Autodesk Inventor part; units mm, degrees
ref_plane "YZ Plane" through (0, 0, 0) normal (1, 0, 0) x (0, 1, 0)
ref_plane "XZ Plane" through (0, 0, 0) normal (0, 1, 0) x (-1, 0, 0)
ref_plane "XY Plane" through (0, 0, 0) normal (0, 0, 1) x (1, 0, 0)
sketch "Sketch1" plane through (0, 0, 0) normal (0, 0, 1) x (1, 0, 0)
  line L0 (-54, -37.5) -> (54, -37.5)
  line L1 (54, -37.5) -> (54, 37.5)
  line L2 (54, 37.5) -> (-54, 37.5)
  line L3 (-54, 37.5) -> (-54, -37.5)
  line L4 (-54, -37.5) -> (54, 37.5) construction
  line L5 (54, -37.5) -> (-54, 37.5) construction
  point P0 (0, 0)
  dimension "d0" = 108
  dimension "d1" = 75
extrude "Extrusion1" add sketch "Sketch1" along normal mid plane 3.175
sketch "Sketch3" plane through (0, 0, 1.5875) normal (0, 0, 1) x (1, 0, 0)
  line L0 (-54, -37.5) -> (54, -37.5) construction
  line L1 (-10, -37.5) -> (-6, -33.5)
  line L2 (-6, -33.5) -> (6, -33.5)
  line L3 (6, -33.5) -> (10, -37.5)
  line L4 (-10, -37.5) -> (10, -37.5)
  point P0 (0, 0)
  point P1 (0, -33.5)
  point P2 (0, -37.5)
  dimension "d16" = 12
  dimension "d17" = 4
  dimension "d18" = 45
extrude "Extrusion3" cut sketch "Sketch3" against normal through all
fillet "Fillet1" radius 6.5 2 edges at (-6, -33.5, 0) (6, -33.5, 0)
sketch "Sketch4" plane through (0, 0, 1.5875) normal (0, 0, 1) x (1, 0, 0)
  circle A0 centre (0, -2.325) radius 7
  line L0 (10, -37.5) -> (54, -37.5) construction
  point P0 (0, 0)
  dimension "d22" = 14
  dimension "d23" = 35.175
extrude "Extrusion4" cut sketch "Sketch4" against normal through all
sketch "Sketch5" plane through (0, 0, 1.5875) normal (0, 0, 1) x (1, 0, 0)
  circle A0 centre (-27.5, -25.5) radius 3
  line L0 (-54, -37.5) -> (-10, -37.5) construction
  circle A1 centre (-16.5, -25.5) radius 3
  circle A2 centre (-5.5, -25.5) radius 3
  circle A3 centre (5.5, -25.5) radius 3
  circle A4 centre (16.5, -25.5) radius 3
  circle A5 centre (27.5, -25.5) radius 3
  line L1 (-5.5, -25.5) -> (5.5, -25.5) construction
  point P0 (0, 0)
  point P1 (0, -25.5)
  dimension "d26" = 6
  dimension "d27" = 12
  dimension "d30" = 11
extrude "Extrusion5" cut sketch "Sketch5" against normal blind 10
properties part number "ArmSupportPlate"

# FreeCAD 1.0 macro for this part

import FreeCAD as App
import Part
import Sketcher


def edges_at(feature, points):
    """Names of the edges that pass closest to the given points."""
    edges = feature.Shape.Edges
    near = lambda p: min(range(len(edges)), key=lambda i: edges[i].distToShape(Part.Vertex(*p))[0])
    return sorted({f"Edge{near(p) + 1}" for p in points})


def add_polygon(sketch, points):
    """Adds a closed chain of lines whose ends are joined by coincident constraints."""
    first, n = sketch.GeometryCount, len(points)
    for a, b in zip(points, points[1:] + points[:1]):
        sketch.addGeometry(Part.LineSegment(App.Vector(*a, 0), App.Vector(*b, 0)), False)
    for i in range(n):
        sketch.addConstraint(Sketcher.Constraint("Coincident", first + i, 2, first + (i + 1) % n, 1))

doc = App.newDocument("Part")
body = doc.addObject("PartDesign::Body", "Body")

# Sketch on XY plane
sketch1 = body.newObject("Sketcher::SketchObject", "Sketch")
sketch1.AttachmentSupport = (doc.getObject("XY_Plane"), [""])
sketch1.MapMode = "FlatFace"
add_polygon(sketch1, [(-54, 37.5), (-54, -37.5), (54, -37.5), (54, 37.5)])  # lines 0-3
sketch1.addConstraint([
    Sketcher.Constraint("Vertical", 0),
    Sketcher.Constraint("Horizontal", 1),
    Sketcher.Constraint("Vertical", 2),
    Sketcher.Constraint("Horizontal", 3),
    Sketcher.Constraint("Symmetric", 0, 2, 2, 2, -1, 1),
    Sketcher.Constraint("DistanceX", 1, 1, 1, 2, 108.0),
    Sketcher.Constraint("DistanceY", 0, 2, 0, 1, 75.0),
])
pad1 = body.newObject("PartDesign::Pad", "Pad")
pad1.Profile = sketch1
pad1.Length = 3.175
pad1.Midplane = True

# Sketch on XY plane
sketch2 = body.newObject("Sketcher::SketchObject", "Sketch001")
sketch2.AttachmentSupport = (doc.getObject("XY_Plane"), [""])
sketch2.MapMode = "FlatFace"
sketch2.AttachmentOffset = App.Placement(App.Vector(0, 0, 1.5875), App.Rotation())
add_polygon(sketch2, [(-6, -33.5), (-10, -37.5), (10, -37.5), (6, -33.5)])  # lines 0-3
sketch2.addConstraint([
    Sketcher.Constraint("Horizontal", 1),
    Sketcher.Constraint("Horizontal", 3),
    Sketcher.Constraint("Perpendicular", 0, 2),
    Sketcher.Constraint("Equal", 0, 2),
    Sketcher.Constraint("DistanceX", 3, 2, 3, 1, 12.0),
    Sketcher.Constraint("DistanceX", 2, 2, 1, 2, 4.0),
    Sketcher.Constraint("DistanceX", 0, 2, -1, 1, 10.0),
    Sketcher.Constraint("DistanceY", 0, 2, -1, 1, 37.5),
])
pocket1 = body.newObject("PartDesign::Pocket", "Pocket")
pocket1.Profile = sketch2
pocket1.Type = "ThroughAll"
doc.recompute()

fillet = body.newObject("PartDesign::Fillet", "Fillet")
fillet.Base = (pocket1, edges_at(pocket1, [(-6, -33.5, 0), (6, -33.5, 0)]))
fillet.Radius = 6.5

# Sketch on XY plane
sketch3 = body.newObject("Sketcher::SketchObject", "Sketch002")
sketch3.AttachmentSupport = (doc.getObject("XY_Plane"), [""])
sketch3.MapMode = "FlatFace"
sketch3.AttachmentOffset = App.Placement(App.Vector(0, 0, 1.5875), App.Rotation())
sketch3.addGeometry(Part.Circle(App.Vector(0, -2.325, 0), App.Vector(0, 0, 1), 7), False)
sketch3.addConstraint([
    Sketcher.Constraint("PointOnObject", 0, 3, -2),
    Sketcher.Constraint("Diameter", 0, 14.0),
    Sketcher.Constraint("DistanceY", 0, 3, -1, 1, 2.325),
])
pocket2 = body.newObject("PartDesign::Pocket", "Pocket001")
pocket2.Profile = sketch3
pocket2.Type = "ThroughAll"

# Sketch on XY plane
sketch4 = body.newObject("Sketcher::SketchObject", "Sketch003")
sketch4.AttachmentSupport = (doc.getObject("XY_Plane"), [""])
sketch4.MapMode = "FlatFace"
sketch4.AttachmentOffset = App.Placement(App.Vector(0, 0, 1.5875), App.Rotation())
sketch4.addGeometry([
    Part.Circle(App.Vector(-27.5, -25.5, 0), App.Vector(0, 0, 1), 3),  # 0
    Part.Circle(App.Vector(-16.5, -25.5, 0), App.Vector(0, 0, 1), 3),  # 1
    Part.Circle(App.Vector(-5.5, -25.5, 0), App.Vector(0, 0, 1), 3),  # 2
    Part.Circle(App.Vector(5.5, -25.5, 0), App.Vector(0, 0, 1), 3),  # 3
    Part.Circle(App.Vector(16.5, -25.5, 0), App.Vector(0, 0, 1), 3),  # 4
    Part.Circle(App.Vector(27.5, -25.5, 0), App.Vector(0, 0, 1), 3),  # 5
], False)
sketch4.addConstraint([
    Sketcher.Constraint("Equal", 0, 1),
    Sketcher.Constraint("Equal", 1, 2),
    Sketcher.Constraint("Equal", 2, 3),
    Sketcher.Constraint("Equal", 3, 4),
    Sketcher.Constraint("Equal", 4, 5),
    Sketcher.Constraint("Symmetric", 2, 3, 3, 3, -2),
    Sketcher.Constraint("Symmetric", 1, 3, 4, 3, -2),
    Sketcher.Constraint("Symmetric", 0, 3, 5, 3, -2),
    Sketcher.Constraint("Horizontal", 0, 3, 1, 3),
    Sketcher.Constraint("Horizontal", 1, 3, 2, 3),
    Sketcher.Constraint("Diameter", 0, 6.0),
    Sketcher.Constraint("DistanceX", 0, 3, 1, 3, 11.0),
    Sketcher.Constraint("DistanceX", 1, 3, 2, 3, 11.0),
    Sketcher.Constraint("DistanceX", 2, 3, 3, 3, 11.0),
    Sketcher.Constraint("DistanceY", 0, 3, -1, 1, 25.5),
])
pocket3 = body.newObject("PartDesign::Pocket", "Pocket002")
pocket3.Profile = sketch4
pocket3.Length = 10

doc.recompute()
